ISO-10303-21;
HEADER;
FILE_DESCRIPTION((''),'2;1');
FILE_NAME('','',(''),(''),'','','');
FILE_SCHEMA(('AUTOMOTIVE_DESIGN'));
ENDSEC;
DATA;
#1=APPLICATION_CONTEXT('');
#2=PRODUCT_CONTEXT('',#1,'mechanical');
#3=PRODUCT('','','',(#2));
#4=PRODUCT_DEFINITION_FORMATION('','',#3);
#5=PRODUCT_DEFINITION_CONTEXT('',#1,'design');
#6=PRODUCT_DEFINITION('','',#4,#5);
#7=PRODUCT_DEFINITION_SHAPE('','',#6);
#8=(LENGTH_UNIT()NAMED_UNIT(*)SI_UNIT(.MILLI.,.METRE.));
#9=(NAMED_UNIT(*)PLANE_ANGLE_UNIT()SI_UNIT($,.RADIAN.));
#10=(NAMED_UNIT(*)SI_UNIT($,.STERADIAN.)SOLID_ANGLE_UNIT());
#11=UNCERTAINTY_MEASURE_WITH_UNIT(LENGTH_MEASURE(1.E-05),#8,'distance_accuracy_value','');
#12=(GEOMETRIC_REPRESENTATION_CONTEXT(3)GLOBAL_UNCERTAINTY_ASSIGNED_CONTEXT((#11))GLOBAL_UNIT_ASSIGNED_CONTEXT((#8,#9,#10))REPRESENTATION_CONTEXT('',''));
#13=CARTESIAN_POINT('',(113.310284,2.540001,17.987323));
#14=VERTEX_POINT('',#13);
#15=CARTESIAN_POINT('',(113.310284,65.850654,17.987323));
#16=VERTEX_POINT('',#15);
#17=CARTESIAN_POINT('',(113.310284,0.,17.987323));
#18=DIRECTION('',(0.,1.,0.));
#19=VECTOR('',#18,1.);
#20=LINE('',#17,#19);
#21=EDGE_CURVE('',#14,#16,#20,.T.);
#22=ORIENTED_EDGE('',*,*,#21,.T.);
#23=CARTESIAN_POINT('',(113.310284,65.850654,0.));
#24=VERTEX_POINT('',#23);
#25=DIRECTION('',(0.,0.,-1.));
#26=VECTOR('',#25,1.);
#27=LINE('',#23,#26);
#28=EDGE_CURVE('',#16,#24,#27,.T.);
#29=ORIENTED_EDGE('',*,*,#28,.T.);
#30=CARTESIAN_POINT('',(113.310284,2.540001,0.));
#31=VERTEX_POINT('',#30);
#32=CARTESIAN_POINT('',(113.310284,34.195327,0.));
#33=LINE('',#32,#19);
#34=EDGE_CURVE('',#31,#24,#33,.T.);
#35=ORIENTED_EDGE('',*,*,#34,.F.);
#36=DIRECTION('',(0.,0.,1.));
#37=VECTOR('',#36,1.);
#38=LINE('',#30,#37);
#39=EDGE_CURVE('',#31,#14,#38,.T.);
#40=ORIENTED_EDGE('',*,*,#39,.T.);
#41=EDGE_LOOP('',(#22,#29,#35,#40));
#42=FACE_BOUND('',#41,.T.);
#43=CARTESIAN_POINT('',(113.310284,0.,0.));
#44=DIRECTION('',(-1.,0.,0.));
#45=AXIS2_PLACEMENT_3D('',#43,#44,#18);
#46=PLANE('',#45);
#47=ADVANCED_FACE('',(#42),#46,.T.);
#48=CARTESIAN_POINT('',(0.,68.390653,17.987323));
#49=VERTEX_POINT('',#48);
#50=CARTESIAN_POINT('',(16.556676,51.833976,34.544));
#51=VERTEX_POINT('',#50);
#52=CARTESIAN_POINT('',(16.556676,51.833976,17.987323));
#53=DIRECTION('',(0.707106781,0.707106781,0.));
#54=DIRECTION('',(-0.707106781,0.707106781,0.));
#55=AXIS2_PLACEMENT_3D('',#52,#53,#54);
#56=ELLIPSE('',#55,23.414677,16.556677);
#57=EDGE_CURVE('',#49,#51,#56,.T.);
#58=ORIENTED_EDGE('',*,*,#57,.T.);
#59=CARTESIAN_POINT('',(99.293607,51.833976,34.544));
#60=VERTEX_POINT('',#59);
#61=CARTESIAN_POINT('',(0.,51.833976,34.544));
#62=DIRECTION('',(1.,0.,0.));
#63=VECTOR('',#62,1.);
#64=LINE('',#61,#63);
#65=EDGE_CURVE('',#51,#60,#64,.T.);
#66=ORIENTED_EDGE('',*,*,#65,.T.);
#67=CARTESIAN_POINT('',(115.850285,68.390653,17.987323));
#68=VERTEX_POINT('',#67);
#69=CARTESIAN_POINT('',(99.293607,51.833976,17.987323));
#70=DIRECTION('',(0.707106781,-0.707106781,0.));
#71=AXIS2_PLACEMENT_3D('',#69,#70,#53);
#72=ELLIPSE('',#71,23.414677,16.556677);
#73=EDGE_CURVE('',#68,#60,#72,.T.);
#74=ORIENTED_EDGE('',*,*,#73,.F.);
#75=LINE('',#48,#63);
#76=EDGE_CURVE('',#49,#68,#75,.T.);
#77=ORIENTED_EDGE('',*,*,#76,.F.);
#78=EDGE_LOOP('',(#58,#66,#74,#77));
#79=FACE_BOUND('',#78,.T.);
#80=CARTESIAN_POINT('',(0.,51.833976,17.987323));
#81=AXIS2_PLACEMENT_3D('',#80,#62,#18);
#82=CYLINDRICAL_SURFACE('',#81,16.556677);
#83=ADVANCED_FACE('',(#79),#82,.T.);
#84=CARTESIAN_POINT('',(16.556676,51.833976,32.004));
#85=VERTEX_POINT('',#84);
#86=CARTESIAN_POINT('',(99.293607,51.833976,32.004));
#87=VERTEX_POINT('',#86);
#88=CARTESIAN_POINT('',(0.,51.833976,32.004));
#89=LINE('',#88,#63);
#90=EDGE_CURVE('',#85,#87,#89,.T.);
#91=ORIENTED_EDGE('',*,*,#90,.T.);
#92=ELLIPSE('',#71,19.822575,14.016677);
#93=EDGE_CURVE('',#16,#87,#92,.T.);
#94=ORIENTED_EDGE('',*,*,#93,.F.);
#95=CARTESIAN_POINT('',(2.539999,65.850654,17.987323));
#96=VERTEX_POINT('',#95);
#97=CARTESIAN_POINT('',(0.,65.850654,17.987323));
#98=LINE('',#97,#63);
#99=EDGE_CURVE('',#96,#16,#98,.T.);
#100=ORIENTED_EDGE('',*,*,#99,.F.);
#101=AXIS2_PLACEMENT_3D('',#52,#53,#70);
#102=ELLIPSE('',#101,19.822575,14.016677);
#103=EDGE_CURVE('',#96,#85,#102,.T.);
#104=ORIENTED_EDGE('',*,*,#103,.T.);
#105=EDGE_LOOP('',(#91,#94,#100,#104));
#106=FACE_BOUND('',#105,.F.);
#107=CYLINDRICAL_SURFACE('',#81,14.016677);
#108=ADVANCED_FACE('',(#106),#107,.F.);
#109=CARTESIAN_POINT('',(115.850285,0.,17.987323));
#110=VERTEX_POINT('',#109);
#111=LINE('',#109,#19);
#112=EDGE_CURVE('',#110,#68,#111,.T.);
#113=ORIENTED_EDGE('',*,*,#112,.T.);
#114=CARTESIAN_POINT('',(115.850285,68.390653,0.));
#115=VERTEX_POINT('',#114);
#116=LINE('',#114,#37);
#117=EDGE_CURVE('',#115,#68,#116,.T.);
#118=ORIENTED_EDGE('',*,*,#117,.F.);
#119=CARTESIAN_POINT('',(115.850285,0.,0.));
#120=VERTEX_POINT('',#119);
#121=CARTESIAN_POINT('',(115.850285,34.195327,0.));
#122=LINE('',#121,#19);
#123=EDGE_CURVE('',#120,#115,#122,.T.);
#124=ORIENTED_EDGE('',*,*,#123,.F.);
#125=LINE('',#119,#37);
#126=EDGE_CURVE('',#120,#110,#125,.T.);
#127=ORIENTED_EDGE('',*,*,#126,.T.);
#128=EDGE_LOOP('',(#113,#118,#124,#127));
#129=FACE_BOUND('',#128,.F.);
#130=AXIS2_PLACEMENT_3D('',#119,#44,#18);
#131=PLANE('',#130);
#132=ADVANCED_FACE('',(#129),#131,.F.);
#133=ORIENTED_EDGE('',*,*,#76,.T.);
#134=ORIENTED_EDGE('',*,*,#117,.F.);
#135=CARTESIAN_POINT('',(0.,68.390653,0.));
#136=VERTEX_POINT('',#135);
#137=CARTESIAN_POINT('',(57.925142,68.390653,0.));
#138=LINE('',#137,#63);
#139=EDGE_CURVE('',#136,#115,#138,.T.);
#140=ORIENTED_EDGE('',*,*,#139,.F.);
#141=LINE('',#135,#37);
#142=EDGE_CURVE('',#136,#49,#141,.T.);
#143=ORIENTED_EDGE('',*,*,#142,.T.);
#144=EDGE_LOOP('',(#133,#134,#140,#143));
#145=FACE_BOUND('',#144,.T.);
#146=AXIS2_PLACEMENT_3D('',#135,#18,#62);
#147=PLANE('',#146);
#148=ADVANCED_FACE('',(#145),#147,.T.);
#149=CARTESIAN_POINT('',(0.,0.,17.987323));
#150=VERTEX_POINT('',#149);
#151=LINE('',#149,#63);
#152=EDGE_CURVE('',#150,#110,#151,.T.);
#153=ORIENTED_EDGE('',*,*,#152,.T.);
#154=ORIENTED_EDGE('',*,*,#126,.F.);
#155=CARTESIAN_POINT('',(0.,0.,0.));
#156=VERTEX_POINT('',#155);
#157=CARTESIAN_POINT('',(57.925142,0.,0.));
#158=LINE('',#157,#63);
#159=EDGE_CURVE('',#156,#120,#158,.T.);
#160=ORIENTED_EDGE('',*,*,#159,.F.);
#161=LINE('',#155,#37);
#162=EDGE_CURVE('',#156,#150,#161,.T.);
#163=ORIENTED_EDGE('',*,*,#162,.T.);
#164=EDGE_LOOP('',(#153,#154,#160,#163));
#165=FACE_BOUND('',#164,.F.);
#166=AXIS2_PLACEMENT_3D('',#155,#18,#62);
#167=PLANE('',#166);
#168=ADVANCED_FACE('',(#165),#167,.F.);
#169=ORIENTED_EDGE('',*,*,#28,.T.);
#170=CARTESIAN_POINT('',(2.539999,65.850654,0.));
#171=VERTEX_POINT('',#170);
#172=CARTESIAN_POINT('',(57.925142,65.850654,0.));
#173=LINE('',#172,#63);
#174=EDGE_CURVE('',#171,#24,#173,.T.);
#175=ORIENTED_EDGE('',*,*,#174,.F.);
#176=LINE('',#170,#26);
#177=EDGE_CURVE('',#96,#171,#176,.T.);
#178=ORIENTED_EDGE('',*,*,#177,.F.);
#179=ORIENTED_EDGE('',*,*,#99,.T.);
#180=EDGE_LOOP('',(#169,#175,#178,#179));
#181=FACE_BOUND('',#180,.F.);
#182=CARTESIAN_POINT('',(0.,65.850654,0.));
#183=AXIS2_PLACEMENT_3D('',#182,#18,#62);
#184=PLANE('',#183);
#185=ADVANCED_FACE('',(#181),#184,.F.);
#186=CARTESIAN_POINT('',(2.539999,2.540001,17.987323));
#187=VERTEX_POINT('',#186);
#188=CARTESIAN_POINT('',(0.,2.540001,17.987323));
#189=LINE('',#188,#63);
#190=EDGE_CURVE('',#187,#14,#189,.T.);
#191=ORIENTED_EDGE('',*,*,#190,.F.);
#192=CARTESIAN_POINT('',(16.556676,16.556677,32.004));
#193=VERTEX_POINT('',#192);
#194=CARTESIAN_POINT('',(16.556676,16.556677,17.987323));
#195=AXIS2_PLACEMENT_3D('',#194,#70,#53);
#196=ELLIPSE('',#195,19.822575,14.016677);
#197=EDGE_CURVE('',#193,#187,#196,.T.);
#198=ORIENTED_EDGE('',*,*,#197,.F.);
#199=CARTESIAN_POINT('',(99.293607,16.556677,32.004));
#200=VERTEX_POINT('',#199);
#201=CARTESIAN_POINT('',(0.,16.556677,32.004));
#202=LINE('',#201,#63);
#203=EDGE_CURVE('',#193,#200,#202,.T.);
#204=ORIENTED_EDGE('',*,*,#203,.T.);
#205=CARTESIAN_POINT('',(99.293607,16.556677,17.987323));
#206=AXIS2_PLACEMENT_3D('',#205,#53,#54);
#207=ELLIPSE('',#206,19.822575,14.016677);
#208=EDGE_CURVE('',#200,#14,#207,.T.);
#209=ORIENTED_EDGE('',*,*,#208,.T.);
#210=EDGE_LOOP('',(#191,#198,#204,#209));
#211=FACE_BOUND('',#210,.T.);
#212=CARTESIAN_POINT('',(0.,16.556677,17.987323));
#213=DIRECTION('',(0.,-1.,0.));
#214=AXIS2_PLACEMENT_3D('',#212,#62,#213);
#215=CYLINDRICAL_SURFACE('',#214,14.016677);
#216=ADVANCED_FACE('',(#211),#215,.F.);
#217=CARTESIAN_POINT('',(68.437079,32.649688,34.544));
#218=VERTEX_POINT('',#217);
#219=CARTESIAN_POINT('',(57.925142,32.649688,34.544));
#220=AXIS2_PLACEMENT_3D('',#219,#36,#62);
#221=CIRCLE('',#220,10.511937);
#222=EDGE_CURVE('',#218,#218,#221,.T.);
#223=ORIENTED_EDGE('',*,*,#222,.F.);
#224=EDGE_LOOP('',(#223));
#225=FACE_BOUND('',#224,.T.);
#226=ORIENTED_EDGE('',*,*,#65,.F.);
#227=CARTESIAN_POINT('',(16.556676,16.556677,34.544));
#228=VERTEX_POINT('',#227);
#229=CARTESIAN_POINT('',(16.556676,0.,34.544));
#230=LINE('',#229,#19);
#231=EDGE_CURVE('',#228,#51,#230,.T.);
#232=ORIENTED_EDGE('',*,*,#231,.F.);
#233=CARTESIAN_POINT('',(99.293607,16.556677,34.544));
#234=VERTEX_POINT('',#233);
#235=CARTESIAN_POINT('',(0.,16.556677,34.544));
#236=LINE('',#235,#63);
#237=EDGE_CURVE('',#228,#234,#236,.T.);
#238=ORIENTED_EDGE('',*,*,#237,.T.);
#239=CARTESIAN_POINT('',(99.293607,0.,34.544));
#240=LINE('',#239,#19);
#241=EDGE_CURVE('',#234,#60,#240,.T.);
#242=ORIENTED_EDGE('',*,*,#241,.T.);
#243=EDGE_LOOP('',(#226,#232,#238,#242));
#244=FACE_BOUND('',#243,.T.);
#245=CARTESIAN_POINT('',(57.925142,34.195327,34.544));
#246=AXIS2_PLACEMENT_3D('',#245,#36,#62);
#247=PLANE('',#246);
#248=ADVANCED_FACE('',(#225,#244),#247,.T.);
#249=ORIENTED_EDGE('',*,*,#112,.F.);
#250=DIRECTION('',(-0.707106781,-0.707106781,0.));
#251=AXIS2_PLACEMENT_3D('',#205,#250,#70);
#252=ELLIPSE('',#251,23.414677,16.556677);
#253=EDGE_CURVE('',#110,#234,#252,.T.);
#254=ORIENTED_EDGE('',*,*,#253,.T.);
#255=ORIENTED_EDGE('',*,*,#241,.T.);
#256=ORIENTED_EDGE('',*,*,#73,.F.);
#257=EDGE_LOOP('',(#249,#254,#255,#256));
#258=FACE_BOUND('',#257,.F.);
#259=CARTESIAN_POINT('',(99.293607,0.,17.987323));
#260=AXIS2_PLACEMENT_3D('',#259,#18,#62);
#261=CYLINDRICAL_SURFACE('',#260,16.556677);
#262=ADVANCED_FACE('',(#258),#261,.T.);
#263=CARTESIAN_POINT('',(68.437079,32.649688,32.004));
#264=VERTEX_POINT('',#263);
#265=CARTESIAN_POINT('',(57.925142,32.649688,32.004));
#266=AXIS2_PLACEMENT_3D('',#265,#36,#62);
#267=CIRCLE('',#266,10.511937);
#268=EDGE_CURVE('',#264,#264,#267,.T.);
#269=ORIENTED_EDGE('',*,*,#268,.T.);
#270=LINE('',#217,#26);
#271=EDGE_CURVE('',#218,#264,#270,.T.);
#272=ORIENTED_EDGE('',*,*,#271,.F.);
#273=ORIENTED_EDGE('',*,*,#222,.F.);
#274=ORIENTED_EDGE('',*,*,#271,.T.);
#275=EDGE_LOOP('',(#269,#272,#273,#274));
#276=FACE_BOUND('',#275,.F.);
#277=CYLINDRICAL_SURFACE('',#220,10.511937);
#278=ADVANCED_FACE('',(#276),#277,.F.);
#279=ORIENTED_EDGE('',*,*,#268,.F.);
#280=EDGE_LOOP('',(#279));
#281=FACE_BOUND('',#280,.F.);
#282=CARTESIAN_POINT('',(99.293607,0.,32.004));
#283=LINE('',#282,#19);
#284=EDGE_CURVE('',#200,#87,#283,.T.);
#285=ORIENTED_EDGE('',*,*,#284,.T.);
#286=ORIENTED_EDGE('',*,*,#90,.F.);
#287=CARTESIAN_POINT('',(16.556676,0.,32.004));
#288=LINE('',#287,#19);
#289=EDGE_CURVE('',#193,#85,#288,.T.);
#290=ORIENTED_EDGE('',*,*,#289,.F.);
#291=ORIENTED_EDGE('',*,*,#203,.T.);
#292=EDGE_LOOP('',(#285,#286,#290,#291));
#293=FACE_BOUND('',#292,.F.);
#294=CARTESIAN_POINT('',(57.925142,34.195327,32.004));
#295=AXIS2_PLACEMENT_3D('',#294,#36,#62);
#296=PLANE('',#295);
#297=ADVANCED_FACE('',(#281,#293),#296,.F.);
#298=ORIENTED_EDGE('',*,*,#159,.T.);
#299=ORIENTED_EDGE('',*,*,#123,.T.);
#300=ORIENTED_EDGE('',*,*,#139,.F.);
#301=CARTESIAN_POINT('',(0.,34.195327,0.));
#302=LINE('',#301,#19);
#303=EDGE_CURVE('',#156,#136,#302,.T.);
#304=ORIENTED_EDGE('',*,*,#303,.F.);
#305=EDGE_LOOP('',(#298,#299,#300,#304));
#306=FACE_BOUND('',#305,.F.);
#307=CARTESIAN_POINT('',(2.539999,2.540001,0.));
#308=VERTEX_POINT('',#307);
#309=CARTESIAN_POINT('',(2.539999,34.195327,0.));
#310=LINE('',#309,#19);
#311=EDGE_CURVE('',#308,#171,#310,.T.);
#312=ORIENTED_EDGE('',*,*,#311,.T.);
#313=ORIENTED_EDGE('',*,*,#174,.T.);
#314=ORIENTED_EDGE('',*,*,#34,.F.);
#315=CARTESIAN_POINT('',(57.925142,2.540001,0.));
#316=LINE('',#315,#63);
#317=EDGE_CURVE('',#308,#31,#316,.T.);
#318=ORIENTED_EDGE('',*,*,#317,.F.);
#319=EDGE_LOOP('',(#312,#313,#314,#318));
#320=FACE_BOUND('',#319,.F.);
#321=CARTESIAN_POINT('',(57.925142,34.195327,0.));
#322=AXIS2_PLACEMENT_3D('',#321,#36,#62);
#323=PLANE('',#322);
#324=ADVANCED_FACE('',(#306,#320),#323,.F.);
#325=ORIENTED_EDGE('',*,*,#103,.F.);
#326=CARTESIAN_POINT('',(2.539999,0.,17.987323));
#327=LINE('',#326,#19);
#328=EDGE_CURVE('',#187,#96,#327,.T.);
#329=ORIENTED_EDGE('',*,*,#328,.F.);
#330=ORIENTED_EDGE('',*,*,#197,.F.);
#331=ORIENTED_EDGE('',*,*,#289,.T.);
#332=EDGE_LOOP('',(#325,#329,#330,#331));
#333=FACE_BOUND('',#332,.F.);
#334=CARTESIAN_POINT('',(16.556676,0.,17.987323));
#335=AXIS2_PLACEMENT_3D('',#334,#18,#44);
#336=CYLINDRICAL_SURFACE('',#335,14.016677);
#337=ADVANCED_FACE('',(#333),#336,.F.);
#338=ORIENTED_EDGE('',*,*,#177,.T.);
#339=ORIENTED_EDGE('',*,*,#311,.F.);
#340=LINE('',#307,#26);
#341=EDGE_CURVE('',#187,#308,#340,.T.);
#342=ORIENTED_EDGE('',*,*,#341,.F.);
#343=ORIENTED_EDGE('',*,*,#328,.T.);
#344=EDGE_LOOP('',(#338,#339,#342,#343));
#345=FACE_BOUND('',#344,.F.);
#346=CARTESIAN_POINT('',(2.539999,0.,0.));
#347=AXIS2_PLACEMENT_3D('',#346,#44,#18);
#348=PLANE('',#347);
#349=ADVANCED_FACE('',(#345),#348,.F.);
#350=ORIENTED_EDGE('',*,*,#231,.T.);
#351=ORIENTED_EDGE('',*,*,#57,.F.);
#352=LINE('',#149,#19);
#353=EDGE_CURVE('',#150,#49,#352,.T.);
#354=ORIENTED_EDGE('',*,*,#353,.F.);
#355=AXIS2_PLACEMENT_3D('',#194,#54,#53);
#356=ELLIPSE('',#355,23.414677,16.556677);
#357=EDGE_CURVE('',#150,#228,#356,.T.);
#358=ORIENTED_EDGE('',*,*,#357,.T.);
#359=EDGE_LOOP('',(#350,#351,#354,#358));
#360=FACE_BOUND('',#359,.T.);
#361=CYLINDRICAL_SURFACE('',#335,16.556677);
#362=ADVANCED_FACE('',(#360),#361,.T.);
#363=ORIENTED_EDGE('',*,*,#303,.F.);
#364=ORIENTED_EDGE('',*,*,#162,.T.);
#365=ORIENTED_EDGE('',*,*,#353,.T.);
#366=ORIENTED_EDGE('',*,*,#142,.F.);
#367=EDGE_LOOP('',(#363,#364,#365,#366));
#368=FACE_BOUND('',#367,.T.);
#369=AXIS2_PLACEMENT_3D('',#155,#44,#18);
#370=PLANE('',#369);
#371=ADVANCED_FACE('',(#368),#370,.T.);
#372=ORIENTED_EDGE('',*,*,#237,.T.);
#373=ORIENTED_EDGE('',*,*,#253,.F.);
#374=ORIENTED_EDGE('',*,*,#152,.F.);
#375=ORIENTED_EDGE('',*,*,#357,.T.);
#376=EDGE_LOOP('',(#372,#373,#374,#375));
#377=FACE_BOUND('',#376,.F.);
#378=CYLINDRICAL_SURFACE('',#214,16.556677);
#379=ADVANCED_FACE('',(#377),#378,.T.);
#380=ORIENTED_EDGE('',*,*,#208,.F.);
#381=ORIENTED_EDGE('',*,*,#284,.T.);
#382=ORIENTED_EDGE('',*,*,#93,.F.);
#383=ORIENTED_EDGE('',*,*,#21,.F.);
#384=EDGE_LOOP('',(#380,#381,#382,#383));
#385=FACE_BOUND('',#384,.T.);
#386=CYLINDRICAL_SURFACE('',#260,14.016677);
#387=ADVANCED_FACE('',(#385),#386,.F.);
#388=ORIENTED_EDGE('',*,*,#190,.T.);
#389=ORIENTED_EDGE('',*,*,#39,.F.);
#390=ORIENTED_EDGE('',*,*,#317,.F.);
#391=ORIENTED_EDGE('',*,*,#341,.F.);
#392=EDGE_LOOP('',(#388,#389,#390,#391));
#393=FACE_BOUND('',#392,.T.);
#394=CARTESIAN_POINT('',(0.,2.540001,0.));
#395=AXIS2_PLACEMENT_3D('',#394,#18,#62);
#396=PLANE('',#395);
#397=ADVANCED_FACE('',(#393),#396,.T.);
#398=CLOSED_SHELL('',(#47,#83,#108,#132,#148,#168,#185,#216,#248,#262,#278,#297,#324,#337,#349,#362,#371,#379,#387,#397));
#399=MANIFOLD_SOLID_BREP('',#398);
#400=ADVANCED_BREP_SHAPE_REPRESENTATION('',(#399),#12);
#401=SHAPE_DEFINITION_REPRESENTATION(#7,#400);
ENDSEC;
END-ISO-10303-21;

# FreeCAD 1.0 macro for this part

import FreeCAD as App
import Part
import Sketcher

V = App.Vector
Q = App.Units.Quantity


def edges_at(feature, points):
    """Names of the edges that pass closest to the given points."""
    edges = feature.Shape.Edges
    near = lambda p: min(range(len(edges)), key=lambda i: edges[i].distToShape(Part.Vertex(*p))[0])
    return sorted({f"Edge{near(p) + 1}" for p in points})


def faces_at(feature, points):
    """Names of the faces that lie closest to the given points."""
    faces = feature.Shape.Faces
    near = lambda p: min(range(len(faces)), key=lambda i: faces[i].distToShape(Part.Vertex(*p))[0])
    return sorted({f"Face{near(p) + 1}" for p in points})


def add_polygon(sketch, points):
    """Adds a closed chain of lines whose ends are joined by coincident constraints."""
    first, n = sketch.GeometryCount, len(points)
    for a, b in zip(points, points[1:] + points[:1]):
        sketch.addGeometry(Part.LineSegment(App.Vector(*a, 0), App.Vector(*b, 0)), False)
    for i in range(n):
        sketch.addConstraint(Sketcher.Constraint("Coincident", first + i, 2, first + (i + 1) % n, 1))

doc = App.newDocument("Part")
body = doc.addObject("PartDesign::Body", "Body")

# Sketch on XY plane
sketch1 = body.newObject("Sketcher::SketchObject", "Sketch")
sketch1.AttachmentSupport = (doc.getObject("XY_Plane"), [""])
sketch1.MapMode = "FlatFace"
add_polygon(sketch1, [(0, 68), (0, 0), (116, 0), (116, 68)])  # lines 0-3
sketch1.addConstraint(Sketcher.Constraint("Vertical", 0))
sketch1.addConstraint(Sketcher.Constraint("Horizontal", 1))
sketch1.addConstraint(Sketcher.Constraint("Vertical", 2))
sketch1.addConstraint(Sketcher.Constraint("Horizontal", 3))
sketch1.addConstraint(Sketcher.Constraint("Coincident", 0, 2, -1, 1))
sketch1.addConstraint(Sketcher.Constraint("DistanceX", 1, 1, 1, 2, Q("115.850285 mm")))
sketch1.addConstraint(Sketcher.Constraint("DistanceY", 0, 2, 0, 1, Q("68.390653 mm")))
pad1 = body.newObject("PartDesign::Pad", "Pad")
pad1.Profile = sketch1
pad1.Length = Q("1.36 in")
doc.recompute()

fillet = body.newObject("PartDesign::Fillet", "Fillet")
fillet.Base = (pad1, edges_at(pad1, [
    (0, 34.195, 34.544),
    (57.925, 0, 34.544),
    (115.85, 34.195, 34.544),
    (57.925, 68.391, 34.544),
]))
fillet.Radius = 16.556677
doc.recompute()

thickness = body.newObject("PartDesign::Thickness", "Thickness")
thickness.Base = (fillet, faces_at(fillet, [(57.925, 34.195, 0)]))
thickness.Value = Q("0.1 in")
thickness.Reversed = True
thickness.Join = "Arc"

# Sketch on XY plane
sketch2 = body.newObject("Sketcher::SketchObject", "Sketch001")
sketch2.AttachmentSupport = (doc.getObject("XY_Plane"), [""])
sketch2.MapMode = "FlatFace"
sketch2.AttachmentOffset = App.Placement(V(0, 0, 1.36 * 25.4), App.Rotation())
sketch2.addGeometry(Part.Circle(V(58, 33, 0), V(0, 0, 1), 11), False)
sketch2.addConstraint(Sketcher.Constraint("Diameter", 0, Q("21.023874 mm")))
sketch2.addConstraint(Sketcher.Constraint("DistanceX", -1, 1, 0, 3, Q("57.925142 mm")))
sketch2.addConstraint(Sketcher.Constraint("DistanceY", -1, 1, 0, 3, Q("32.649688 mm")))
pocket1 = body.newObject("PartDesign::Pocket", "Pocket")
pocket1.Profile = sketch2
pocket1.Length = Q("1 in")

doc.recompute()
